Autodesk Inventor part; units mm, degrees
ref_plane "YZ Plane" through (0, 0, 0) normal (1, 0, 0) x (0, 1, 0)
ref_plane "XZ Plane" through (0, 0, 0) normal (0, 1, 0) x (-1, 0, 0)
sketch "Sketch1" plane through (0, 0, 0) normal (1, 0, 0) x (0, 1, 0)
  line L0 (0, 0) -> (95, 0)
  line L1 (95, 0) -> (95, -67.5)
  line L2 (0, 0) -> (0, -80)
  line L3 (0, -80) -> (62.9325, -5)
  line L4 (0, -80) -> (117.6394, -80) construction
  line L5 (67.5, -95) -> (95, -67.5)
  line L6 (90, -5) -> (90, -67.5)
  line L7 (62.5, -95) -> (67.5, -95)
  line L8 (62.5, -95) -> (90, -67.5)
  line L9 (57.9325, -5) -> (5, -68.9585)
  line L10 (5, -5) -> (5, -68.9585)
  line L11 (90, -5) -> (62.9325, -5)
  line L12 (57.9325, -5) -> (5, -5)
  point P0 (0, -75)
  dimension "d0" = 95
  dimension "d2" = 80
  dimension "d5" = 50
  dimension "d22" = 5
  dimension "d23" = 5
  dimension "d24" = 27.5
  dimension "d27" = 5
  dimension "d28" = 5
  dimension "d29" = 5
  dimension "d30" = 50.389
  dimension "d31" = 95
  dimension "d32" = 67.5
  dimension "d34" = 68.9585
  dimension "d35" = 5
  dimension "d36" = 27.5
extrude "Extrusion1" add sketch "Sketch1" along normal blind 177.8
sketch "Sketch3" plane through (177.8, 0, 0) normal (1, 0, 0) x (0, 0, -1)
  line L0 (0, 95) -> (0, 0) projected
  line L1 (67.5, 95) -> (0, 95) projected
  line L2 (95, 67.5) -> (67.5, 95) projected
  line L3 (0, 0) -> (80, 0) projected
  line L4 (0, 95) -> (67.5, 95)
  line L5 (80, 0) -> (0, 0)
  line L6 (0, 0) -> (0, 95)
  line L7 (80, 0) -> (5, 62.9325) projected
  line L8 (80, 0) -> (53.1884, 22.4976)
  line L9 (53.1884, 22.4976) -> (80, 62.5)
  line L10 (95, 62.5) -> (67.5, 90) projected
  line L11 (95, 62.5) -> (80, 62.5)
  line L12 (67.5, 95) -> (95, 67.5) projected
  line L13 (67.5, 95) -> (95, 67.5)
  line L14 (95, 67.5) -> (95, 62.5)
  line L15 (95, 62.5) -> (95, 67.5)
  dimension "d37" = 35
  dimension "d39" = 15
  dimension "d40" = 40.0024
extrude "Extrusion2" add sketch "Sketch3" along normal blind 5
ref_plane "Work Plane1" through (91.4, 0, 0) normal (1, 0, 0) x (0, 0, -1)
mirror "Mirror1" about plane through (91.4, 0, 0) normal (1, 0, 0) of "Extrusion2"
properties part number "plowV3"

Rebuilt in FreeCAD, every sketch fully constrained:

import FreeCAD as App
import Part
import Sketcher

V = App.Vector
Q = App.Units.Quantity

doc = App.newDocument("Part")
body = doc.addObject("PartDesign::Body", "Body")

# Sketch on YZ plane
sketch1 = body.newObject("Sketcher::SketchObject", "Sketch")
sketch1.AttachmentSupport = (doc.getObject("YZ_Plane"), [""])
sketch1.MapMode = "FlatFace"
sketch1.addGeometry([
    Part.LineSegment(V(95, 0, 0), V(0, 0, 0)),  # 0
    Part.LineSegment(V(0, 0, 0), V(0, -80, 0)),  # 1
    Part.LineSegment(V(0, -80, 0), V(63, -5, 0)),  # 2
    Part.LineSegment(V(63, -5, 0), V(90, -5, 0)),  # 3
    Part.LineSegment(V(90, -5, 0), V(90, -68, 0)),  # 4
    Part.LineSegment(V(90, -68, 0), V(62, -95, 0)),  # 5
    Part.LineSegment(V(62, -95, 0), V(68, -95, 0)),  # 6
    Part.LineSegment(V(68, -95, 0), V(95, -68, 0)),  # 7
    Part.LineSegment(V(95, -68, 0), V(95, 0, 0)),  # 8
    Part.LineSegment(V(5, -5, 0), V(58, -5, 0)),  # 9
    Part.LineSegment(V(58, -5, 0), V(5, -69, 0)),  # 10
    Part.LineSegment(V(5, -69, 0), V(5, -5, 0)),  # 11
], False)
sketch1.addConstraint([
    Sketcher.Constraint("Coincident", 0, 2, 1, 1),
    Sketcher.Constraint("Coincident", 1, 2, 2, 1),
    Sketcher.Constraint("Coincident", 2, 2, 3, 1),
    Sketcher.Constraint("Coincident", 3, 2, 4, 1),
    Sketcher.Constraint("Coincident", 4, 2, 5, 1),
    Sketcher.Constraint("Coincident", 5, 2, 6, 1),
    Sketcher.Constraint("Coincident", 6, 2, 7, 1),
    Sketcher.Constraint("Coincident", 7, 2, 8, 1),
    Sketcher.Constraint("Coincident", 8, 2, 0, 1),
    Sketcher.Constraint("Coincident", 9, 2, 10, 1),
    Sketcher.Constraint("Coincident", 10, 2, 11, 1),
    Sketcher.Constraint("Coincident", 11, 2, 9, 1),
    Sketcher.Constraint("Horizontal", 0),
    Sketcher.Constraint("Vertical", 1),
    Sketcher.Constraint("Horizontal", 3),
    Sketcher.Constraint("Vertical", 4),
    Sketcher.Constraint("Horizontal", 6),
    Sketcher.Constraint("Vertical", 8),
    Sketcher.Constraint("Horizontal", 9),
    Sketcher.Constraint("Vertical", 11),
    Sketcher.Constraint("Coincident", 0, 2, -1, 1),
    Sketcher.Constraint("Parallel", 5, 7),
    Sketcher.Constraint("Horizontal", 4, 2, 7, 2),
    Sketcher.Constraint("Horizontal", 3, 2, 9, 2),
    Sketcher.Constraint("DistanceX", 0, 2, 0, 1, Q("95 mm")),
    Sketcher.Constraint("DistanceX", 6, 1, 6, 2, Q("5 mm")),
    Sketcher.Constraint("DistanceY", 1, 2, 1, 1, Q("80 mm")),
    Sketcher.Constraint("Angle", 2, Q("50 deg")),
    Sketcher.Constraint("DistanceY", 8, 1, 8, 2, Q("67.5 mm")),
    Sketcher.Constraint("DistanceY", 2, 2, -1, 1, Q("5 mm")),
    Sketcher.Constraint("DistanceY", 5, 2, -1, 1, Q("95 mm")),
    Sketcher.Constraint("DistanceX", -1, 1, 10, 2, Q("5 mm")),
    Sketcher.Constraint("DistanceX", 9, 2, 2, 2, Q("5 mm")),
    Sketcher.Constraint("DistanceX", -1, 1, 6, 2, Q("67.5 mm")),
    Sketcher.Constraint("DistanceY", 10, 2, -1, 1, Q("68.9585 mm")),
])
pad1 = body.newObject("PartDesign::Pad", "Pad")
pad1.Profile = sketch1
pad1.Length = 177.8

# Sketch on YZ plane
sketch2 = body.newObject("Sketcher::SketchObject", "Sketch001")
sketch2.AttachmentSupport = (doc.getObject("YZ_Plane"), [""])
sketch2.MapMode = "FlatFace"
sketch2.AttachmentOffset = App.Placement(V(0, 0, 177.8), App.Rotation())
sketch2.addGeometry([
    Part.LineSegment(V(95, -68, 0), V(95, 0, 0)),  # 0
    Part.LineSegment(V(95, 0, 0), V(0, 0, 0)),  # 1
    Part.LineSegment(V(0, 0, 0), V(0, -80, 0)),  # 2
    Part.LineSegment(V(0, -80, 0), V(22, -53, 0)),  # 3
    Part.LineSegment(V(22, -53, 0), V(62, -80, 0)),  # 4
    Part.LineSegment(V(62, -80, 0), V(62, -95, 0)),  # 5
    Part.LineSegment(V(62, -95, 0), V(68, -95, 0)),  # 6
    Part.LineSegment(V(68, -95, 0), V(95, -68, 0)),  # 7
], False)
sketch2.addConstraint([
    Sketcher.Constraint("Coincident", 0, 2, 1, 1),
    Sketcher.Constraint("Coincident", 1, 2, 2, 1),
    Sketcher.Constraint("Coincident", 2, 2, 3, 1),
    Sketcher.Constraint("Coincident", 3, 2, 4, 1),
    Sketcher.Constraint("Coincident", 4, 2, 5, 1),
    Sketcher.Constraint("Coincident", 5, 2, 6, 1),
    Sketcher.Constraint("Coincident", 6, 2, 7, 1),
    Sketcher.Constraint("Coincident", 7, 2, 0, 1),
    Sketcher.Constraint("Vertical", 0),
    Sketcher.Constraint("Horizontal", 1),
    Sketcher.Constraint("Vertical", 2),
    Sketcher.Constraint("Vertical", 5),
    Sketcher.Constraint("Horizontal", 6),
    Sketcher.Constraint("Coincident", 1, 2, -1, 1),
    Sketcher.Constraint("Horizontal", 2, 2, 4, 2),
    Sketcher.Constraint("DistanceY", 5, 2, 5, 1, Q("15 mm")),
    Sketcher.Constraint("Distance", 3, Q("35 mm")),
    Sketcher.Constraint("DistanceX", 1, 2, 1, 1, Q("95 mm")),
    Sketcher.Constraint("DistanceX", 6, 1, 6, 2, Q("5 mm")),
    Sketcher.Constraint("DistanceY", 2, 2, 2, 1, Q("80 mm")),
    Sketcher.Constraint("Angle", 3, Q("50 deg")),
    Sketcher.Constraint("Angle", 7, Q("45 deg")),
    Sketcher.Constraint("DistanceY", 0, 1, 0, 2, Q("67.5 mm")),
])
pad2 = body.newObject("PartDesign::Pad", "Pad001")
pad2.Profile = sketch2
pad2.Length = 5
doc.recompute()

datumplane = body.newObject("PartDesign::Plane", "DatumPlane")
datumplane.AttachmentSupport = (doc.getObject("YZ_Plane"), [""])
datumplane.MapMode = "FlatFace"
datumplane.AttachmentOffset = App.Placement(V(0, 0, 91.4), App.Rotation())
mirrored = body.newObject("PartDesign::Mirrored", "Mirrored")
mirrored.Originals = [pad2]
mirrored.MirrorPlane = (datumplane, [""])
body.Tip = mirrored

doc.recompute()
